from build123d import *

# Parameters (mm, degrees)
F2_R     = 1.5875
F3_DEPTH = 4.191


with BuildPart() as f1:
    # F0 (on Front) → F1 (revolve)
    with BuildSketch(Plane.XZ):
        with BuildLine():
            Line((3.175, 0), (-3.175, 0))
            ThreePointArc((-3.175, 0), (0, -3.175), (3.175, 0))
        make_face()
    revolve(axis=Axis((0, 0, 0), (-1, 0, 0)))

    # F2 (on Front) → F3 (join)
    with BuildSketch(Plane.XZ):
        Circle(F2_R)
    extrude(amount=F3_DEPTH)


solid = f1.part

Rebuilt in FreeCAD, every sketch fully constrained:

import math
import FreeCAD as App
import Part
import Sketcher
from FreeCAD import Vector
Q = App.Units.Quantity

doc = App.newDocument("Part")
body = doc.addObject("PartDesign::Body", "Body")

# Sketch on XZ plane
sketch1 = doc.addObject("Sketcher::SketchObject", "Sketch")
body.addObject(sketch1)
sketch1.AttachmentSupport = (doc.XZ_Plane, [""])
sketch1.MapMode = "FlatFace"
sketch1.addGeometry([
    Part.LineSegment(Vector(3.2, 0, 0), Vector(-3.2, 0, 0)),
    Part.ArcOfCircle(Part.Circle(Vector(0, 0, 0), Vector(0, 0, 1), 3.2), math.radians(180), math.radians(360)),
], False)
sketch1.addConstraint([
    Sketcher.Constraint("Coincident", 0, 1, 1, 2),
    Sketcher.Constraint("Coincident", 1, 1, 0, 2),
    Sketcher.Constraint("Horizontal", 0),
    Sketcher.Constraint("Coincident", 1, 3, -1, 1),
    Sketcher.Constraint("PointOnObject", 0, 1, -1),
    Sketcher.Constraint("Radius", 1, Q("0.125 in")),
])
revolution = doc.addObject("PartDesign::Revolution", "Revolution")
body.addObject(revolution)
revolution.Profile = sketch1
revolution.ReferenceAxis = (sketch1, ["H_Axis"])
revolution.Angle = 360

# Sketch on XZ plane
sketch2 = doc.addObject("Sketcher::SketchObject", "Sketch001")
body.addObject(sketch2)
sketch2.AttachmentSupport = (doc.XZ_Plane, [""])
sketch2.MapMode = "FlatFace"
sketch2.addGeometry(Part.Circle(Vector(0, 0, 0), Vector(0, 0, 1), 1.6), False)
sketch2.addConstraint([
    Sketcher.Constraint("Coincident", 0, 3, -1, 1),
    Sketcher.Constraint("Diameter", 0, Q("0.125 in")),
])
pad1 = doc.addObject("PartDesign::Pad", "Pad")
body.addObject(pad1)
pad1.Profile = sketch2
pad1.Length = Q("0.165 in")

doc.recompute()
